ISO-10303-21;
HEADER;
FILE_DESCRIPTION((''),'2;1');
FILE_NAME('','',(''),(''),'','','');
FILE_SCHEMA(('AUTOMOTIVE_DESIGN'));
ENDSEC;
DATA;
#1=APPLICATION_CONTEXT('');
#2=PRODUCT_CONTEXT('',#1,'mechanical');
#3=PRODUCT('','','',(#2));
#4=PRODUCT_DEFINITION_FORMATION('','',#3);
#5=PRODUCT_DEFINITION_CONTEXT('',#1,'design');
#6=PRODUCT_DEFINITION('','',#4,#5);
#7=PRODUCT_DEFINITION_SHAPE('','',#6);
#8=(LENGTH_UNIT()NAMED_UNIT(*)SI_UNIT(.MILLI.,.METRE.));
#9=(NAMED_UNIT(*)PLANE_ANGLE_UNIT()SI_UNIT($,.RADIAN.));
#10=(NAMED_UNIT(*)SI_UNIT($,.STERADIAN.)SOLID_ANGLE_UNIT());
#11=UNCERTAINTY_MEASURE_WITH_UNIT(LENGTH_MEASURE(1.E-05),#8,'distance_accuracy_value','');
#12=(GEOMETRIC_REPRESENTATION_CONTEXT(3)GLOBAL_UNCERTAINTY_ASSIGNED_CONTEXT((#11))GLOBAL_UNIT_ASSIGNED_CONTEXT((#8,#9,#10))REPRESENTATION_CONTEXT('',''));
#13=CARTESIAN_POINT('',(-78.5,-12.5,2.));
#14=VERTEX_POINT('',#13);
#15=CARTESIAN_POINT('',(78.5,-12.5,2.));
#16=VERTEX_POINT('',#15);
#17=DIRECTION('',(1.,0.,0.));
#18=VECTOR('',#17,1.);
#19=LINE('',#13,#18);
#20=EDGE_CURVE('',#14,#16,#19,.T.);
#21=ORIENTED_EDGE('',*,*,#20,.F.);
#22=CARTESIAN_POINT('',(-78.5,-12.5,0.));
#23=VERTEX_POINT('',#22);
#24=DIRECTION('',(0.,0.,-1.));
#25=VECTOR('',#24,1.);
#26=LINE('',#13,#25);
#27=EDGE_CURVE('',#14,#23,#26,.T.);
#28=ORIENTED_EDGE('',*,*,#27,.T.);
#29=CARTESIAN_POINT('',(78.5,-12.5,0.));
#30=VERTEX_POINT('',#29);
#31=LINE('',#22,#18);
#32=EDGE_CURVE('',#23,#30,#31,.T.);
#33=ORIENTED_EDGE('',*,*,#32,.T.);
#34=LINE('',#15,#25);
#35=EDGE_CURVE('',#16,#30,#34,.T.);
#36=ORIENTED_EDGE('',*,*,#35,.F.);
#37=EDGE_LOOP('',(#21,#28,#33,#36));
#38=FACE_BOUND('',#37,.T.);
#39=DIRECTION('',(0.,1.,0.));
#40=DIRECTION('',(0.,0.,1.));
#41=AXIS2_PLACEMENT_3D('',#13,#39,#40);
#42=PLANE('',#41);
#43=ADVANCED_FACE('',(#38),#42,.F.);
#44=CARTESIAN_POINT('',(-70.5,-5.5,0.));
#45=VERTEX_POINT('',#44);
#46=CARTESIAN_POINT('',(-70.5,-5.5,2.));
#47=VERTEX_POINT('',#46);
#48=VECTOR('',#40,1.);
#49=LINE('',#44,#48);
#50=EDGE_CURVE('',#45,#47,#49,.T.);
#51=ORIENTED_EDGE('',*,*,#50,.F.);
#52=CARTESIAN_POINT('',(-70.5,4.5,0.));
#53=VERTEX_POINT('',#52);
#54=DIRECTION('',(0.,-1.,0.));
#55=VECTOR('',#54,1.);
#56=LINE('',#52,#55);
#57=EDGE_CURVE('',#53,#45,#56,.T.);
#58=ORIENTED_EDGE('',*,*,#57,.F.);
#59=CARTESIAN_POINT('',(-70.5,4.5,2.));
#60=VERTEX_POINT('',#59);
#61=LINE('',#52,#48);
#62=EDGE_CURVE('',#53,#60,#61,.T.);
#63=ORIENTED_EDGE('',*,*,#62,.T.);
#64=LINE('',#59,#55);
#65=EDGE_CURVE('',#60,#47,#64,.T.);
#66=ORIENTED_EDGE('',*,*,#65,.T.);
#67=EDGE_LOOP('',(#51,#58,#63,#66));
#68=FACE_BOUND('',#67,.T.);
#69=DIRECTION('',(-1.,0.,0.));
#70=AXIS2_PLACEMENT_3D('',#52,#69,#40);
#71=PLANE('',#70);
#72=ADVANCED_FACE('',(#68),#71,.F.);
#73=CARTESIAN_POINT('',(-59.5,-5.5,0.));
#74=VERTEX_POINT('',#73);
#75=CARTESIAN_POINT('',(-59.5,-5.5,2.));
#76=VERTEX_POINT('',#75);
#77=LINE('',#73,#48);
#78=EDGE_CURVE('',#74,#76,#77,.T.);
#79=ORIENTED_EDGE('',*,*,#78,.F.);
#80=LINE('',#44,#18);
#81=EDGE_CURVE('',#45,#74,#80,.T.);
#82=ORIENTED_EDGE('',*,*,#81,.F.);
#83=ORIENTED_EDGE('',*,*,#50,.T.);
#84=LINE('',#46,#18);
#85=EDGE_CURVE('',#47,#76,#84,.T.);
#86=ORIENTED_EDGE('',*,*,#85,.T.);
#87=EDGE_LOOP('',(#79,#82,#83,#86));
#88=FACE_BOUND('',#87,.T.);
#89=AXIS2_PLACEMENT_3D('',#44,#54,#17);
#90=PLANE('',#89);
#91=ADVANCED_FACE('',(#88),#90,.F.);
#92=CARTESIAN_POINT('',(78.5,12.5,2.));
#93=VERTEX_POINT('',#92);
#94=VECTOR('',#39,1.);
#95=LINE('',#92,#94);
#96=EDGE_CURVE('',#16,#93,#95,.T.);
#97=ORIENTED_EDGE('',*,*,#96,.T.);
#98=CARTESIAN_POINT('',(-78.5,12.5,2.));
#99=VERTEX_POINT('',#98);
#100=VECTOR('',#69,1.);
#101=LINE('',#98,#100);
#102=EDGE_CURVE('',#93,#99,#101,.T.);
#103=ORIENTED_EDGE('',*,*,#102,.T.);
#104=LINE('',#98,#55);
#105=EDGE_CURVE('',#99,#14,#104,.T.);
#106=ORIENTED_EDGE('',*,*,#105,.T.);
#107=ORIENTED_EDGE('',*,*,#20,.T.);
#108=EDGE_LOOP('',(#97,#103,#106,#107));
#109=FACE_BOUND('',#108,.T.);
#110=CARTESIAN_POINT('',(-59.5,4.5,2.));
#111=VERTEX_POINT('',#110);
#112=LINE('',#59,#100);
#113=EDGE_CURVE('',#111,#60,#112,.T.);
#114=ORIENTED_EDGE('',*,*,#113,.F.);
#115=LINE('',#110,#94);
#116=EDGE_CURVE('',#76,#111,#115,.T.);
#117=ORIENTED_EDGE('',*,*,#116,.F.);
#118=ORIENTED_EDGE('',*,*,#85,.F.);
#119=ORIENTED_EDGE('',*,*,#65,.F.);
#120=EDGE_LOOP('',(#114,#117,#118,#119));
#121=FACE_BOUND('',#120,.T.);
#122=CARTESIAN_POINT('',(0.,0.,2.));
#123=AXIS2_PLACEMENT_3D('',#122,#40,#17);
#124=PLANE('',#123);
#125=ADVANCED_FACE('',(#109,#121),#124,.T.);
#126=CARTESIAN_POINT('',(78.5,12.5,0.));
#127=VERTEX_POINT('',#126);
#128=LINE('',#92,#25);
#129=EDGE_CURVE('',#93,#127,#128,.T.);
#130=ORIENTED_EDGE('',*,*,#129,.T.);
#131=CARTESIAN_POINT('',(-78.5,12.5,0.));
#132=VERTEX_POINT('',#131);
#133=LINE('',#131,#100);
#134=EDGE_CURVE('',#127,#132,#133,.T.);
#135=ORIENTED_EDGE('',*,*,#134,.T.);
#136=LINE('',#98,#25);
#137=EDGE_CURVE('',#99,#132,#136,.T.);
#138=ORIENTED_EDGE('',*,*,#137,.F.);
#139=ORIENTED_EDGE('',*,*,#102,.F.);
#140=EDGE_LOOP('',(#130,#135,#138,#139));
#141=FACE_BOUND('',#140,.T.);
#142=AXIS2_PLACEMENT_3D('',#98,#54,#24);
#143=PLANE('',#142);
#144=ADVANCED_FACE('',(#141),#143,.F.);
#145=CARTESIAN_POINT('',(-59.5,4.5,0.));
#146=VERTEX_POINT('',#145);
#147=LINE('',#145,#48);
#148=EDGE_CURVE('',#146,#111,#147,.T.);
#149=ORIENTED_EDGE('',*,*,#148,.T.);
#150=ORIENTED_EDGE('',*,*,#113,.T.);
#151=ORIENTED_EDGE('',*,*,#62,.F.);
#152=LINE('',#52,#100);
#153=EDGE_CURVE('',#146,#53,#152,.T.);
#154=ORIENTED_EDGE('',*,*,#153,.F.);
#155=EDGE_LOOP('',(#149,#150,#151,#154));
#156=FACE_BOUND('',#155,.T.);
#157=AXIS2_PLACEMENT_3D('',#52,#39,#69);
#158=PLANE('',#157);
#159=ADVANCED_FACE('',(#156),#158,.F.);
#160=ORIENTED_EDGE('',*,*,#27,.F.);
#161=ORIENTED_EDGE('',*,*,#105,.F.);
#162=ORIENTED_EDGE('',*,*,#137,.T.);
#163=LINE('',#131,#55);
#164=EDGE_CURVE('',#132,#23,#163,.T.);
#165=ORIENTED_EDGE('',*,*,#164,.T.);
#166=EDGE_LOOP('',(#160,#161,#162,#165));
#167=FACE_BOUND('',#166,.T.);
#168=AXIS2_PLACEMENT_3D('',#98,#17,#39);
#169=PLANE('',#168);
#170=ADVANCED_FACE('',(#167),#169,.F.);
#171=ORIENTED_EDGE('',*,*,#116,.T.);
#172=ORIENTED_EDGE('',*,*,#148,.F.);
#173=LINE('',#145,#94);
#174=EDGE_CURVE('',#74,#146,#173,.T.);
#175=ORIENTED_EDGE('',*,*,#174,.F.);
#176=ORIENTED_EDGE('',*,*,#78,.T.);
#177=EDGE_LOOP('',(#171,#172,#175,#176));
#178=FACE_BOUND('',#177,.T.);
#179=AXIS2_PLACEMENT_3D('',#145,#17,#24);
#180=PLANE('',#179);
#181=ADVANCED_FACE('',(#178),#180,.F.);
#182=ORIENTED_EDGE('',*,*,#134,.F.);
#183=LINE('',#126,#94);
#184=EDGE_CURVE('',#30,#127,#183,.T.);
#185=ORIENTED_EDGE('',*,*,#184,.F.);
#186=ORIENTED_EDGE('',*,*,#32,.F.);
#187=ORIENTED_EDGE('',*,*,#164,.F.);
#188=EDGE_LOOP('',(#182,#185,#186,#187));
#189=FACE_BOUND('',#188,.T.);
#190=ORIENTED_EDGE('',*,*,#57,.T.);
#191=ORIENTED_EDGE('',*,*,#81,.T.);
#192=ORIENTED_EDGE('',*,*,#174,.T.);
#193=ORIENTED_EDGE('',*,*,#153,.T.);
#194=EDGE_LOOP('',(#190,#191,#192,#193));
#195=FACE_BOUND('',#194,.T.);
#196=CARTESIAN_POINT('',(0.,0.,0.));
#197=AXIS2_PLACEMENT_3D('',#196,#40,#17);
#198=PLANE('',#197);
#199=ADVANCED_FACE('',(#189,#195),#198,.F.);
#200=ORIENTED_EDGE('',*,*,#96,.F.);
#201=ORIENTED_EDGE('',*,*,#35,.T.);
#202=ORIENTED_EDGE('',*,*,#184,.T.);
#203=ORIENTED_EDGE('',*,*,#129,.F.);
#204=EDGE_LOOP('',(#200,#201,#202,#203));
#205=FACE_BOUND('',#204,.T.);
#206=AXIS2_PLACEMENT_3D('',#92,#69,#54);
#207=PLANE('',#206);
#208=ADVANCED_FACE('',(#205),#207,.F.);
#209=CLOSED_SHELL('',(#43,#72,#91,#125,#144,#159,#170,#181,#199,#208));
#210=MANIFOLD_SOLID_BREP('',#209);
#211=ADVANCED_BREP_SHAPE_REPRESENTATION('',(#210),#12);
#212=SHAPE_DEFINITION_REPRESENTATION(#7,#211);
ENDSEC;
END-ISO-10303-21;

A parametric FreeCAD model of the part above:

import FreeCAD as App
import Part
import Sketcher
from FreeCAD import Vector


def add_polygon(sketch, points):
    """Adds a closed chain of lines whose ends are joined by coincident constraints."""
    first, n = sketch.GeometryCount, len(points)
    for a, b in zip(points, points[1:] + points[:1]):
        sketch.addGeometry(Part.LineSegment(App.Vector(*a, 0), App.Vector(*b, 0)), False)
    for i in range(n):
        sketch.addConstraint(Sketcher.Constraint("Coincident", first + i, 2, first + (i + 1) % n, 1))

doc = App.newDocument("Part")
params = doc.addObject("Spreadsheet::Sheet", "Params")
for row, (alias, value) in enumerate([
    ("sketch1_width", "157 mm"),
    ("sketch1_height", "25 mm"),
    ("pad1_length", "2 mm"),
    ("sketch2_width", "11 mm"),
    ("sketch2_height", "10 mm"),
], start=1):
    params.set(f"A{row}", alias)
    params.set(f"B{row}", "=" + value)
    params.setAlias(f"B{row}", alias)

body = doc.addObject("PartDesign::Body", "Body")

# Sketch on XY plane
sketch1 = body.newObject("Sketcher::SketchObject", "Sketch")
sketch1.AttachmentSupport = (doc.getObject("XY_Plane"), [""])
sketch1.MapMode = "FlatFace"
add_polygon(sketch1, [(-78, 12), (-78, -12), (78, -12), (78, 12)])  # lines 0-3
sketch1.addConstraint([
    Sketcher.Constraint("Vertical", 0),
    Sketcher.Constraint("Horizontal", 1),
    Sketcher.Constraint("Vertical", 2),
    Sketcher.Constraint("Horizontal", 3),
    Sketcher.Constraint("Symmetric", 0, 2, 2, 2, -1, 1),
    Sketcher.Constraint("DistanceX", 1, 1, 1, 2, 157.0),
    Sketcher.Constraint("DistanceY", 0, 2, 0, 1, 25.0),
])
sketch1.setExpression("Constraints[9]", "Params.sketch1_width")
sketch1.setExpression("Constraints[10]", "Params.sketch1_height")
pad1 = body.newObject("PartDesign::Pad", "Pad")
pad1.Profile = sketch1
pad1.setExpression("Length", "Params.pad1_length")

# Sketch on XY plane
sketch2 = body.newObject("Sketcher::SketchObject", "Sketch001")
sketch2.AttachmentSupport = (doc.getObject("XY_Plane"), [""])
sketch2.MapMode = "FlatFace"
sketch2.AttachmentOffset = App.Placement(Vector(0, 0, 2), App.Rotation())
add_polygon(sketch2, [(-70, 4), (-70, -6), (-60, -6), (-60, 4)])  # lines 0-3
sketch2.addConstraint([
    Sketcher.Constraint("Vertical", 0),
    Sketcher.Constraint("Horizontal", 1),
    Sketcher.Constraint("Vertical", 2),
    Sketcher.Constraint("Horizontal", 3),
    Sketcher.Constraint("DistanceX", 1, 1, 1, 2, 11.0),
    Sketcher.Constraint("DistanceY", 0, 2, 0, 1, 10.0),
    Sketcher.Constraint("DistanceX", 0, 2, -1, 1, 70.5),
    Sketcher.Constraint("DistanceY", 0, 2, -1, 1, 5.5),
])
sketch2.setExpression("Constraints[8]", "Params.sketch2_width")
sketch2.setExpression("Constraints[9]", "Params.sketch2_height")
pocket1 = body.newObject("PartDesign::Pocket", "Pocket")
pocket1.Profile = sketch2
pocket1.Type = "ThroughAll"

doc.recompute()
